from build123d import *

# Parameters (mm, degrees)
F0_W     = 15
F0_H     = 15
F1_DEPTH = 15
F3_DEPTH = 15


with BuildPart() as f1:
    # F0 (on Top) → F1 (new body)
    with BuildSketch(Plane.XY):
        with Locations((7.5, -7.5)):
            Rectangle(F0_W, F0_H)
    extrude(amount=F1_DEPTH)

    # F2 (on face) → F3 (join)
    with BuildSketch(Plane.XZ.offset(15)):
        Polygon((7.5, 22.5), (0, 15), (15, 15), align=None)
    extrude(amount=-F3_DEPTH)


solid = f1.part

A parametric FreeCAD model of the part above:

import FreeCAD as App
import Part
import Sketcher

V = App.Vector


def add_polygon(sketch, points):
    """Adds a closed chain of lines whose ends are joined by coincident constraints."""
    first, n = sketch.GeometryCount, len(points)
    for a, b in zip(points, points[1:] + points[:1]):
        sketch.addGeometry(Part.LineSegment(App.Vector(*a, 0), App.Vector(*b, 0)), False)
    for i in range(n):
        sketch.addConstraint(Sketcher.Constraint("Coincident", first + i, 2, first + (i + 1) % n, 1))

doc = App.newDocument("Part")
body = doc.addObject("PartDesign::Body", "Body")

sketch1 = doc.addObject("Sketcher::SketchObject", "Sketch")
body.addObject(sketch1)
sketch1.AttachmentSupport = (doc.XY_Plane, [""])
sketch1.MapMode = "FlatFace"
add_polygon(sketch1, [(0, 0), (0, -15), (15, -15), (15, 0)])
sketch1.addConstraint([
    Sketcher.Constraint("Vertical", 0),
    Sketcher.Constraint("Horizontal", 1),
    Sketcher.Constraint("Vertical", 2),
    Sketcher.Constraint("Horizontal", 3),
    Sketcher.Constraint("Coincident", 3, 2, -1, 1),
    Sketcher.Constraint("Equal", 3, 0),
    Sketcher.Constraint("DistanceX", 1, 1, 1, 2, 15.0),
])
pad1 = doc.addObject("PartDesign::Pad", "Pad")
body.addObject(pad1)
pad1.Profile = sketch1
pad1.Length = 15

sketch2 = doc.addObject("Sketcher::SketchObject", "Sketch001")
body.addObject(sketch2)
sketch2.AttachmentSupport = (doc.XZ_Plane, [""])
sketch2.MapMode = "FlatFace"
sketch2.AttachmentOffset = App.Placement(V(0, 0, 15), App.Rotation())
add_polygon(sketch2, [(8, 22), (0, 15), (15, 15)])
sketch2.addConstraint([
    Sketcher.Constraint("Horizontal", 1),
    Sketcher.Constraint("PointOnObject", 0, 2, -2),
    Sketcher.Constraint("Perpendicular", 0, 2),
    Sketcher.Constraint("Equal", 0, 2),
    Sketcher.Constraint("DistanceX", 1, 1, 1, 2, 15.0),
    Sketcher.Constraint("DistanceY", -1, 1, 0, 2, 15.0),
])
pad2 = doc.addObject("PartDesign::Pad", "Pad001")
body.addObject(pad2)
pad2.Profile = sketch2
pad2.Length = 15
pad2.Reversed = True

doc.recompute()
